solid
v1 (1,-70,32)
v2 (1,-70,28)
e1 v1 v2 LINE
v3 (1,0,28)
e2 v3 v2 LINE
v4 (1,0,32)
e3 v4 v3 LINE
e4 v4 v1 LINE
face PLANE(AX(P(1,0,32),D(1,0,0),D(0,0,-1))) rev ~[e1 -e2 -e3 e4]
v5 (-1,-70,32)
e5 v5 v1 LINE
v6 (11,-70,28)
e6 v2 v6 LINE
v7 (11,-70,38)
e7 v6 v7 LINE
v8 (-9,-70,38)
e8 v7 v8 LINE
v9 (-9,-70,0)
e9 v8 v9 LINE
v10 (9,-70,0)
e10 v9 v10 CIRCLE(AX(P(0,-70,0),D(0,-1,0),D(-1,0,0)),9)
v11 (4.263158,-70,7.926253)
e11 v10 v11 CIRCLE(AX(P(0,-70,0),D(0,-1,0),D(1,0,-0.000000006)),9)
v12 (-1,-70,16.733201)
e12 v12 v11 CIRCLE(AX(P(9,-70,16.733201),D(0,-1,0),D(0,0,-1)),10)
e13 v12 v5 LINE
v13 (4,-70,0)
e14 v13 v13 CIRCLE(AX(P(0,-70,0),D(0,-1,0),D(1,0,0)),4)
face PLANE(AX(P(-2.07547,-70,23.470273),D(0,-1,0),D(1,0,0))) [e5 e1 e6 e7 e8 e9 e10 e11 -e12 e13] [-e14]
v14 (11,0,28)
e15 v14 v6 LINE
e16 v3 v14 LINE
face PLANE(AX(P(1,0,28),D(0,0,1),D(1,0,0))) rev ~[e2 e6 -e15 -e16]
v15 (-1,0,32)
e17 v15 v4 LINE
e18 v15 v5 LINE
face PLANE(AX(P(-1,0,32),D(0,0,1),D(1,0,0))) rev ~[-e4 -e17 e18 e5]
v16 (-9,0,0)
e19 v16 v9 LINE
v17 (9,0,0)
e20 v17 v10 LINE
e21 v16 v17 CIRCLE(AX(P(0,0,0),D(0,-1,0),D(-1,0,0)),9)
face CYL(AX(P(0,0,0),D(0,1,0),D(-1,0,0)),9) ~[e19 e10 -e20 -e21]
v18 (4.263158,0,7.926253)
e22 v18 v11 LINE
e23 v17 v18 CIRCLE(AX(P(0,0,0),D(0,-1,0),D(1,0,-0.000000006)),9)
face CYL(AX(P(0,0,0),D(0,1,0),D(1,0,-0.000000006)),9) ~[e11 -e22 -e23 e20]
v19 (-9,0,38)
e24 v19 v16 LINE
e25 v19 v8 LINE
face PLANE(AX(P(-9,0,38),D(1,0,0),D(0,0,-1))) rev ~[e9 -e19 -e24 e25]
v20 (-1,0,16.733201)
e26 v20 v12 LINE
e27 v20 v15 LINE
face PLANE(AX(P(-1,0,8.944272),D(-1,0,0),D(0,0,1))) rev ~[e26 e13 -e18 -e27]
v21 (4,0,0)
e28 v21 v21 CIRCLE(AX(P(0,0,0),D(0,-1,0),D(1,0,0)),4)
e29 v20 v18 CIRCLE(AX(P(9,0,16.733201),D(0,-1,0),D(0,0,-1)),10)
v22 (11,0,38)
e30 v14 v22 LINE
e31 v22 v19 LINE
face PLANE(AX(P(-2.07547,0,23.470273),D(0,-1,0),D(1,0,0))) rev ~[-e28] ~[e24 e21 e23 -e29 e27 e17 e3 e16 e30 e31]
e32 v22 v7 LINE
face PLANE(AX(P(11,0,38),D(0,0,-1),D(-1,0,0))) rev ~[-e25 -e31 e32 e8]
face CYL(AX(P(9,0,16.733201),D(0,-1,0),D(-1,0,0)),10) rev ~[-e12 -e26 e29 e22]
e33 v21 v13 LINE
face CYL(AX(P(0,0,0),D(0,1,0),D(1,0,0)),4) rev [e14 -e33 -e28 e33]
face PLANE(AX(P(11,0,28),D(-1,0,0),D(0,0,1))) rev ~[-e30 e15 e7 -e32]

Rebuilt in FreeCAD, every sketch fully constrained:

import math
import FreeCAD as App
import Part
import Sketcher


def edges_at(feature, points):
    """Names of the edges that pass closest to the given points."""
    edges = feature.Shape.Edges
    near = lambda p: min(range(len(edges)), key=lambda i: edges[i].distToShape(Part.Vertex(*p))[0])
    return sorted({f"Edge{near(p) + 1}" for p in points})

doc = App.newDocument("Part")
params = doc.addObject("Spreadsheet::Sheet", "Params")
for row, (alias, value) in enumerate([
    ("sketch1_diameter", "8 mm"),
    ("sketch1_radius", "9 mm"),
    ("sketch1_width", "2 mm"),
    ("sketch1_width2", "10 mm"),
    ("sketch1_width3", "20 mm"),
    ("pad1_length", "70 mm"),
    ("fillet_radius", "10 mm"),
], start=1):
    params.set(f"A{row}", alias)
    params.set(f"B{row}", "=" + value)
    params.setAlias(f"B{row}", alias)

body = doc.addObject("PartDesign::Body", "Body")

# Sketch on XZ plane
sketch1 = doc.addObject("Sketcher::SketchObject", "Sketch")
body.addObject(sketch1)
sketch1.AttachmentSupport = (doc.XZ_Plane, [""])
sketch1.MapMode = "FlatFace"
sketch1.addGeometry(Part.LineSegment(App.Vector(-1, 8.944272, 0), App.Vector(-1, 32, 0)), False)
sketch1.addGeometry(Part.LineSegment(App.Vector(-1, 32, 0), App.Vector(1, 32, 0)), False)
sketch1.addGeometry(Part.LineSegment(App.Vector(1, 32, 0), App.Vector(1, 28, 0)), False)
sketch1.addGeometry(Part.LineSegment(App.Vector(1, 28, 0), App.Vector(11, 28, 0)), False)
sketch1.addGeometry(Part.LineSegment(App.Vector(11, 28, 0), App.Vector(11, 38, 0)), False)
sketch1.addGeometry(Part.LineSegment(App.Vector(11, 38, 0), App.Vector(-9, 38, 0)), False)
sketch1.addGeometry(Part.LineSegment(App.Vector(-9, 38, 0), App.Vector(-9, 0, 0)), False)
sketch1.addGeometry(Part.ArcOfCircle(Part.Circle(App.Vector(0, 0, 0), App.Vector(0, 0, 1), 9), math.radians(180), math.radians(360)), False)
sketch1.addGeometry(Part.ArcOfCircle(Part.Circle(App.Vector(0, 0, 0), App.Vector(0, 0, 1), 9), math.radians(0), math.radians(96.37937)), False)
sketch1.addGeometry(Part.Circle(App.Vector(0, 0, 0), App.Vector(0, 0, 1), 4), False)
sketch1.addConstraint(Sketcher.Constraint("Coincident", 0, 2, 1, 1))
sketch1.addConstraint(Sketcher.Constraint("Coincident", 1, 2, 2, 1))
sketch1.addConstraint(Sketcher.Constraint("Coincident", 2, 2, 3, 1))
sketch1.addConstraint(Sketcher.Constraint("Coincident", 3, 2, 4, 1))
sketch1.addConstraint(Sketcher.Constraint("Coincident", 4, 2, 5, 1))
sketch1.addConstraint(Sketcher.Constraint("Coincident", 5, 2, 6, 1))
sketch1.addConstraint(Sketcher.Constraint("Tangent", 6, 2, 7, 1))
sketch1.addConstraint(Sketcher.Constraint("Tangent", 7, 2, 8, 1))
sketch1.addConstraint(Sketcher.Constraint("Coincident", 8, 2, 0, 1))
sketch1.addConstraint(Sketcher.Constraint("Vertical", 0))
sketch1.addConstraint(Sketcher.Constraint("Horizontal", 1))
sketch1.addConstraint(Sketcher.Constraint("Vertical", 2))
sketch1.addConstraint(Sketcher.Constraint("Horizontal", 3))
sketch1.addConstraint(Sketcher.Constraint("Vertical", 4))
sketch1.addConstraint(Sketcher.Constraint("Horizontal", 5))
sketch1.addConstraint(Sketcher.Constraint("Vertical", 6))
sketch1.addConstraint(Sketcher.Constraint("Coincident", 7, 3, -1, 1))
sketch1.addConstraint(Sketcher.Constraint("Coincident", 9, 3, -1, 1))
sketch1.addConstraint(Sketcher.Constraint("Equal", 7, 8))
sketch1.addConstraint(Sketcher.Constraint("PointOnObject", 7, 2, -1))
sketch1.addConstraint(Sketcher.Constraint("Equal", 3, 4))
sketch1.addConstraint(Sketcher.Constraint("Diameter", 9, 8.0))
sketch1.addConstraint(Sketcher.Constraint("Radius", 7, 9.0))
sketch1.addConstraint(Sketcher.Constraint("DistanceX", 1, 1, 1, 2, 2.0))
sketch1.addConstraint(Sketcher.Constraint("DistanceX", 3, 1, 3, 2, 10.0))
sketch1.addConstraint(Sketcher.Constraint("DistanceX", 5, 2, 5, 1, 20.0))
sketch1.addConstraint(Sketcher.Constraint("DistanceY", 2, 2, 2, 1, 4.0))
sketch1.addConstraint(Sketcher.Constraint("DistanceY", 6, 2, 6, 1, 38.0))
sketch1.setExpression("Constraints[21]", "Params.sketch1_diameter")
sketch1.setExpression("Constraints[22]", "Params.sketch1_radius")
sketch1.setExpression("Constraints[23]", "Params.sketch1_width")
sketch1.setExpression("Constraints[24]", "Params.sketch1_width2")
sketch1.setExpression("Constraints[25]", "Params.sketch1_width3")
pad1 = doc.addObject("PartDesign::Pad", "Pad")
body.addObject(pad1)
pad1.Profile = sketch1
pad1.setExpression("Length", "Params.pad1_length")
doc.recompute()

fillet = doc.addObject("PartDesign::Fillet", "Fillet")
body.addObject(fillet)
fillet.Base = (pad1, edges_at(pad1, [(-1, -35, 8.944)]))
fillet.setExpression("Radius", "Params.fillet_radius")

doc.recompute()
